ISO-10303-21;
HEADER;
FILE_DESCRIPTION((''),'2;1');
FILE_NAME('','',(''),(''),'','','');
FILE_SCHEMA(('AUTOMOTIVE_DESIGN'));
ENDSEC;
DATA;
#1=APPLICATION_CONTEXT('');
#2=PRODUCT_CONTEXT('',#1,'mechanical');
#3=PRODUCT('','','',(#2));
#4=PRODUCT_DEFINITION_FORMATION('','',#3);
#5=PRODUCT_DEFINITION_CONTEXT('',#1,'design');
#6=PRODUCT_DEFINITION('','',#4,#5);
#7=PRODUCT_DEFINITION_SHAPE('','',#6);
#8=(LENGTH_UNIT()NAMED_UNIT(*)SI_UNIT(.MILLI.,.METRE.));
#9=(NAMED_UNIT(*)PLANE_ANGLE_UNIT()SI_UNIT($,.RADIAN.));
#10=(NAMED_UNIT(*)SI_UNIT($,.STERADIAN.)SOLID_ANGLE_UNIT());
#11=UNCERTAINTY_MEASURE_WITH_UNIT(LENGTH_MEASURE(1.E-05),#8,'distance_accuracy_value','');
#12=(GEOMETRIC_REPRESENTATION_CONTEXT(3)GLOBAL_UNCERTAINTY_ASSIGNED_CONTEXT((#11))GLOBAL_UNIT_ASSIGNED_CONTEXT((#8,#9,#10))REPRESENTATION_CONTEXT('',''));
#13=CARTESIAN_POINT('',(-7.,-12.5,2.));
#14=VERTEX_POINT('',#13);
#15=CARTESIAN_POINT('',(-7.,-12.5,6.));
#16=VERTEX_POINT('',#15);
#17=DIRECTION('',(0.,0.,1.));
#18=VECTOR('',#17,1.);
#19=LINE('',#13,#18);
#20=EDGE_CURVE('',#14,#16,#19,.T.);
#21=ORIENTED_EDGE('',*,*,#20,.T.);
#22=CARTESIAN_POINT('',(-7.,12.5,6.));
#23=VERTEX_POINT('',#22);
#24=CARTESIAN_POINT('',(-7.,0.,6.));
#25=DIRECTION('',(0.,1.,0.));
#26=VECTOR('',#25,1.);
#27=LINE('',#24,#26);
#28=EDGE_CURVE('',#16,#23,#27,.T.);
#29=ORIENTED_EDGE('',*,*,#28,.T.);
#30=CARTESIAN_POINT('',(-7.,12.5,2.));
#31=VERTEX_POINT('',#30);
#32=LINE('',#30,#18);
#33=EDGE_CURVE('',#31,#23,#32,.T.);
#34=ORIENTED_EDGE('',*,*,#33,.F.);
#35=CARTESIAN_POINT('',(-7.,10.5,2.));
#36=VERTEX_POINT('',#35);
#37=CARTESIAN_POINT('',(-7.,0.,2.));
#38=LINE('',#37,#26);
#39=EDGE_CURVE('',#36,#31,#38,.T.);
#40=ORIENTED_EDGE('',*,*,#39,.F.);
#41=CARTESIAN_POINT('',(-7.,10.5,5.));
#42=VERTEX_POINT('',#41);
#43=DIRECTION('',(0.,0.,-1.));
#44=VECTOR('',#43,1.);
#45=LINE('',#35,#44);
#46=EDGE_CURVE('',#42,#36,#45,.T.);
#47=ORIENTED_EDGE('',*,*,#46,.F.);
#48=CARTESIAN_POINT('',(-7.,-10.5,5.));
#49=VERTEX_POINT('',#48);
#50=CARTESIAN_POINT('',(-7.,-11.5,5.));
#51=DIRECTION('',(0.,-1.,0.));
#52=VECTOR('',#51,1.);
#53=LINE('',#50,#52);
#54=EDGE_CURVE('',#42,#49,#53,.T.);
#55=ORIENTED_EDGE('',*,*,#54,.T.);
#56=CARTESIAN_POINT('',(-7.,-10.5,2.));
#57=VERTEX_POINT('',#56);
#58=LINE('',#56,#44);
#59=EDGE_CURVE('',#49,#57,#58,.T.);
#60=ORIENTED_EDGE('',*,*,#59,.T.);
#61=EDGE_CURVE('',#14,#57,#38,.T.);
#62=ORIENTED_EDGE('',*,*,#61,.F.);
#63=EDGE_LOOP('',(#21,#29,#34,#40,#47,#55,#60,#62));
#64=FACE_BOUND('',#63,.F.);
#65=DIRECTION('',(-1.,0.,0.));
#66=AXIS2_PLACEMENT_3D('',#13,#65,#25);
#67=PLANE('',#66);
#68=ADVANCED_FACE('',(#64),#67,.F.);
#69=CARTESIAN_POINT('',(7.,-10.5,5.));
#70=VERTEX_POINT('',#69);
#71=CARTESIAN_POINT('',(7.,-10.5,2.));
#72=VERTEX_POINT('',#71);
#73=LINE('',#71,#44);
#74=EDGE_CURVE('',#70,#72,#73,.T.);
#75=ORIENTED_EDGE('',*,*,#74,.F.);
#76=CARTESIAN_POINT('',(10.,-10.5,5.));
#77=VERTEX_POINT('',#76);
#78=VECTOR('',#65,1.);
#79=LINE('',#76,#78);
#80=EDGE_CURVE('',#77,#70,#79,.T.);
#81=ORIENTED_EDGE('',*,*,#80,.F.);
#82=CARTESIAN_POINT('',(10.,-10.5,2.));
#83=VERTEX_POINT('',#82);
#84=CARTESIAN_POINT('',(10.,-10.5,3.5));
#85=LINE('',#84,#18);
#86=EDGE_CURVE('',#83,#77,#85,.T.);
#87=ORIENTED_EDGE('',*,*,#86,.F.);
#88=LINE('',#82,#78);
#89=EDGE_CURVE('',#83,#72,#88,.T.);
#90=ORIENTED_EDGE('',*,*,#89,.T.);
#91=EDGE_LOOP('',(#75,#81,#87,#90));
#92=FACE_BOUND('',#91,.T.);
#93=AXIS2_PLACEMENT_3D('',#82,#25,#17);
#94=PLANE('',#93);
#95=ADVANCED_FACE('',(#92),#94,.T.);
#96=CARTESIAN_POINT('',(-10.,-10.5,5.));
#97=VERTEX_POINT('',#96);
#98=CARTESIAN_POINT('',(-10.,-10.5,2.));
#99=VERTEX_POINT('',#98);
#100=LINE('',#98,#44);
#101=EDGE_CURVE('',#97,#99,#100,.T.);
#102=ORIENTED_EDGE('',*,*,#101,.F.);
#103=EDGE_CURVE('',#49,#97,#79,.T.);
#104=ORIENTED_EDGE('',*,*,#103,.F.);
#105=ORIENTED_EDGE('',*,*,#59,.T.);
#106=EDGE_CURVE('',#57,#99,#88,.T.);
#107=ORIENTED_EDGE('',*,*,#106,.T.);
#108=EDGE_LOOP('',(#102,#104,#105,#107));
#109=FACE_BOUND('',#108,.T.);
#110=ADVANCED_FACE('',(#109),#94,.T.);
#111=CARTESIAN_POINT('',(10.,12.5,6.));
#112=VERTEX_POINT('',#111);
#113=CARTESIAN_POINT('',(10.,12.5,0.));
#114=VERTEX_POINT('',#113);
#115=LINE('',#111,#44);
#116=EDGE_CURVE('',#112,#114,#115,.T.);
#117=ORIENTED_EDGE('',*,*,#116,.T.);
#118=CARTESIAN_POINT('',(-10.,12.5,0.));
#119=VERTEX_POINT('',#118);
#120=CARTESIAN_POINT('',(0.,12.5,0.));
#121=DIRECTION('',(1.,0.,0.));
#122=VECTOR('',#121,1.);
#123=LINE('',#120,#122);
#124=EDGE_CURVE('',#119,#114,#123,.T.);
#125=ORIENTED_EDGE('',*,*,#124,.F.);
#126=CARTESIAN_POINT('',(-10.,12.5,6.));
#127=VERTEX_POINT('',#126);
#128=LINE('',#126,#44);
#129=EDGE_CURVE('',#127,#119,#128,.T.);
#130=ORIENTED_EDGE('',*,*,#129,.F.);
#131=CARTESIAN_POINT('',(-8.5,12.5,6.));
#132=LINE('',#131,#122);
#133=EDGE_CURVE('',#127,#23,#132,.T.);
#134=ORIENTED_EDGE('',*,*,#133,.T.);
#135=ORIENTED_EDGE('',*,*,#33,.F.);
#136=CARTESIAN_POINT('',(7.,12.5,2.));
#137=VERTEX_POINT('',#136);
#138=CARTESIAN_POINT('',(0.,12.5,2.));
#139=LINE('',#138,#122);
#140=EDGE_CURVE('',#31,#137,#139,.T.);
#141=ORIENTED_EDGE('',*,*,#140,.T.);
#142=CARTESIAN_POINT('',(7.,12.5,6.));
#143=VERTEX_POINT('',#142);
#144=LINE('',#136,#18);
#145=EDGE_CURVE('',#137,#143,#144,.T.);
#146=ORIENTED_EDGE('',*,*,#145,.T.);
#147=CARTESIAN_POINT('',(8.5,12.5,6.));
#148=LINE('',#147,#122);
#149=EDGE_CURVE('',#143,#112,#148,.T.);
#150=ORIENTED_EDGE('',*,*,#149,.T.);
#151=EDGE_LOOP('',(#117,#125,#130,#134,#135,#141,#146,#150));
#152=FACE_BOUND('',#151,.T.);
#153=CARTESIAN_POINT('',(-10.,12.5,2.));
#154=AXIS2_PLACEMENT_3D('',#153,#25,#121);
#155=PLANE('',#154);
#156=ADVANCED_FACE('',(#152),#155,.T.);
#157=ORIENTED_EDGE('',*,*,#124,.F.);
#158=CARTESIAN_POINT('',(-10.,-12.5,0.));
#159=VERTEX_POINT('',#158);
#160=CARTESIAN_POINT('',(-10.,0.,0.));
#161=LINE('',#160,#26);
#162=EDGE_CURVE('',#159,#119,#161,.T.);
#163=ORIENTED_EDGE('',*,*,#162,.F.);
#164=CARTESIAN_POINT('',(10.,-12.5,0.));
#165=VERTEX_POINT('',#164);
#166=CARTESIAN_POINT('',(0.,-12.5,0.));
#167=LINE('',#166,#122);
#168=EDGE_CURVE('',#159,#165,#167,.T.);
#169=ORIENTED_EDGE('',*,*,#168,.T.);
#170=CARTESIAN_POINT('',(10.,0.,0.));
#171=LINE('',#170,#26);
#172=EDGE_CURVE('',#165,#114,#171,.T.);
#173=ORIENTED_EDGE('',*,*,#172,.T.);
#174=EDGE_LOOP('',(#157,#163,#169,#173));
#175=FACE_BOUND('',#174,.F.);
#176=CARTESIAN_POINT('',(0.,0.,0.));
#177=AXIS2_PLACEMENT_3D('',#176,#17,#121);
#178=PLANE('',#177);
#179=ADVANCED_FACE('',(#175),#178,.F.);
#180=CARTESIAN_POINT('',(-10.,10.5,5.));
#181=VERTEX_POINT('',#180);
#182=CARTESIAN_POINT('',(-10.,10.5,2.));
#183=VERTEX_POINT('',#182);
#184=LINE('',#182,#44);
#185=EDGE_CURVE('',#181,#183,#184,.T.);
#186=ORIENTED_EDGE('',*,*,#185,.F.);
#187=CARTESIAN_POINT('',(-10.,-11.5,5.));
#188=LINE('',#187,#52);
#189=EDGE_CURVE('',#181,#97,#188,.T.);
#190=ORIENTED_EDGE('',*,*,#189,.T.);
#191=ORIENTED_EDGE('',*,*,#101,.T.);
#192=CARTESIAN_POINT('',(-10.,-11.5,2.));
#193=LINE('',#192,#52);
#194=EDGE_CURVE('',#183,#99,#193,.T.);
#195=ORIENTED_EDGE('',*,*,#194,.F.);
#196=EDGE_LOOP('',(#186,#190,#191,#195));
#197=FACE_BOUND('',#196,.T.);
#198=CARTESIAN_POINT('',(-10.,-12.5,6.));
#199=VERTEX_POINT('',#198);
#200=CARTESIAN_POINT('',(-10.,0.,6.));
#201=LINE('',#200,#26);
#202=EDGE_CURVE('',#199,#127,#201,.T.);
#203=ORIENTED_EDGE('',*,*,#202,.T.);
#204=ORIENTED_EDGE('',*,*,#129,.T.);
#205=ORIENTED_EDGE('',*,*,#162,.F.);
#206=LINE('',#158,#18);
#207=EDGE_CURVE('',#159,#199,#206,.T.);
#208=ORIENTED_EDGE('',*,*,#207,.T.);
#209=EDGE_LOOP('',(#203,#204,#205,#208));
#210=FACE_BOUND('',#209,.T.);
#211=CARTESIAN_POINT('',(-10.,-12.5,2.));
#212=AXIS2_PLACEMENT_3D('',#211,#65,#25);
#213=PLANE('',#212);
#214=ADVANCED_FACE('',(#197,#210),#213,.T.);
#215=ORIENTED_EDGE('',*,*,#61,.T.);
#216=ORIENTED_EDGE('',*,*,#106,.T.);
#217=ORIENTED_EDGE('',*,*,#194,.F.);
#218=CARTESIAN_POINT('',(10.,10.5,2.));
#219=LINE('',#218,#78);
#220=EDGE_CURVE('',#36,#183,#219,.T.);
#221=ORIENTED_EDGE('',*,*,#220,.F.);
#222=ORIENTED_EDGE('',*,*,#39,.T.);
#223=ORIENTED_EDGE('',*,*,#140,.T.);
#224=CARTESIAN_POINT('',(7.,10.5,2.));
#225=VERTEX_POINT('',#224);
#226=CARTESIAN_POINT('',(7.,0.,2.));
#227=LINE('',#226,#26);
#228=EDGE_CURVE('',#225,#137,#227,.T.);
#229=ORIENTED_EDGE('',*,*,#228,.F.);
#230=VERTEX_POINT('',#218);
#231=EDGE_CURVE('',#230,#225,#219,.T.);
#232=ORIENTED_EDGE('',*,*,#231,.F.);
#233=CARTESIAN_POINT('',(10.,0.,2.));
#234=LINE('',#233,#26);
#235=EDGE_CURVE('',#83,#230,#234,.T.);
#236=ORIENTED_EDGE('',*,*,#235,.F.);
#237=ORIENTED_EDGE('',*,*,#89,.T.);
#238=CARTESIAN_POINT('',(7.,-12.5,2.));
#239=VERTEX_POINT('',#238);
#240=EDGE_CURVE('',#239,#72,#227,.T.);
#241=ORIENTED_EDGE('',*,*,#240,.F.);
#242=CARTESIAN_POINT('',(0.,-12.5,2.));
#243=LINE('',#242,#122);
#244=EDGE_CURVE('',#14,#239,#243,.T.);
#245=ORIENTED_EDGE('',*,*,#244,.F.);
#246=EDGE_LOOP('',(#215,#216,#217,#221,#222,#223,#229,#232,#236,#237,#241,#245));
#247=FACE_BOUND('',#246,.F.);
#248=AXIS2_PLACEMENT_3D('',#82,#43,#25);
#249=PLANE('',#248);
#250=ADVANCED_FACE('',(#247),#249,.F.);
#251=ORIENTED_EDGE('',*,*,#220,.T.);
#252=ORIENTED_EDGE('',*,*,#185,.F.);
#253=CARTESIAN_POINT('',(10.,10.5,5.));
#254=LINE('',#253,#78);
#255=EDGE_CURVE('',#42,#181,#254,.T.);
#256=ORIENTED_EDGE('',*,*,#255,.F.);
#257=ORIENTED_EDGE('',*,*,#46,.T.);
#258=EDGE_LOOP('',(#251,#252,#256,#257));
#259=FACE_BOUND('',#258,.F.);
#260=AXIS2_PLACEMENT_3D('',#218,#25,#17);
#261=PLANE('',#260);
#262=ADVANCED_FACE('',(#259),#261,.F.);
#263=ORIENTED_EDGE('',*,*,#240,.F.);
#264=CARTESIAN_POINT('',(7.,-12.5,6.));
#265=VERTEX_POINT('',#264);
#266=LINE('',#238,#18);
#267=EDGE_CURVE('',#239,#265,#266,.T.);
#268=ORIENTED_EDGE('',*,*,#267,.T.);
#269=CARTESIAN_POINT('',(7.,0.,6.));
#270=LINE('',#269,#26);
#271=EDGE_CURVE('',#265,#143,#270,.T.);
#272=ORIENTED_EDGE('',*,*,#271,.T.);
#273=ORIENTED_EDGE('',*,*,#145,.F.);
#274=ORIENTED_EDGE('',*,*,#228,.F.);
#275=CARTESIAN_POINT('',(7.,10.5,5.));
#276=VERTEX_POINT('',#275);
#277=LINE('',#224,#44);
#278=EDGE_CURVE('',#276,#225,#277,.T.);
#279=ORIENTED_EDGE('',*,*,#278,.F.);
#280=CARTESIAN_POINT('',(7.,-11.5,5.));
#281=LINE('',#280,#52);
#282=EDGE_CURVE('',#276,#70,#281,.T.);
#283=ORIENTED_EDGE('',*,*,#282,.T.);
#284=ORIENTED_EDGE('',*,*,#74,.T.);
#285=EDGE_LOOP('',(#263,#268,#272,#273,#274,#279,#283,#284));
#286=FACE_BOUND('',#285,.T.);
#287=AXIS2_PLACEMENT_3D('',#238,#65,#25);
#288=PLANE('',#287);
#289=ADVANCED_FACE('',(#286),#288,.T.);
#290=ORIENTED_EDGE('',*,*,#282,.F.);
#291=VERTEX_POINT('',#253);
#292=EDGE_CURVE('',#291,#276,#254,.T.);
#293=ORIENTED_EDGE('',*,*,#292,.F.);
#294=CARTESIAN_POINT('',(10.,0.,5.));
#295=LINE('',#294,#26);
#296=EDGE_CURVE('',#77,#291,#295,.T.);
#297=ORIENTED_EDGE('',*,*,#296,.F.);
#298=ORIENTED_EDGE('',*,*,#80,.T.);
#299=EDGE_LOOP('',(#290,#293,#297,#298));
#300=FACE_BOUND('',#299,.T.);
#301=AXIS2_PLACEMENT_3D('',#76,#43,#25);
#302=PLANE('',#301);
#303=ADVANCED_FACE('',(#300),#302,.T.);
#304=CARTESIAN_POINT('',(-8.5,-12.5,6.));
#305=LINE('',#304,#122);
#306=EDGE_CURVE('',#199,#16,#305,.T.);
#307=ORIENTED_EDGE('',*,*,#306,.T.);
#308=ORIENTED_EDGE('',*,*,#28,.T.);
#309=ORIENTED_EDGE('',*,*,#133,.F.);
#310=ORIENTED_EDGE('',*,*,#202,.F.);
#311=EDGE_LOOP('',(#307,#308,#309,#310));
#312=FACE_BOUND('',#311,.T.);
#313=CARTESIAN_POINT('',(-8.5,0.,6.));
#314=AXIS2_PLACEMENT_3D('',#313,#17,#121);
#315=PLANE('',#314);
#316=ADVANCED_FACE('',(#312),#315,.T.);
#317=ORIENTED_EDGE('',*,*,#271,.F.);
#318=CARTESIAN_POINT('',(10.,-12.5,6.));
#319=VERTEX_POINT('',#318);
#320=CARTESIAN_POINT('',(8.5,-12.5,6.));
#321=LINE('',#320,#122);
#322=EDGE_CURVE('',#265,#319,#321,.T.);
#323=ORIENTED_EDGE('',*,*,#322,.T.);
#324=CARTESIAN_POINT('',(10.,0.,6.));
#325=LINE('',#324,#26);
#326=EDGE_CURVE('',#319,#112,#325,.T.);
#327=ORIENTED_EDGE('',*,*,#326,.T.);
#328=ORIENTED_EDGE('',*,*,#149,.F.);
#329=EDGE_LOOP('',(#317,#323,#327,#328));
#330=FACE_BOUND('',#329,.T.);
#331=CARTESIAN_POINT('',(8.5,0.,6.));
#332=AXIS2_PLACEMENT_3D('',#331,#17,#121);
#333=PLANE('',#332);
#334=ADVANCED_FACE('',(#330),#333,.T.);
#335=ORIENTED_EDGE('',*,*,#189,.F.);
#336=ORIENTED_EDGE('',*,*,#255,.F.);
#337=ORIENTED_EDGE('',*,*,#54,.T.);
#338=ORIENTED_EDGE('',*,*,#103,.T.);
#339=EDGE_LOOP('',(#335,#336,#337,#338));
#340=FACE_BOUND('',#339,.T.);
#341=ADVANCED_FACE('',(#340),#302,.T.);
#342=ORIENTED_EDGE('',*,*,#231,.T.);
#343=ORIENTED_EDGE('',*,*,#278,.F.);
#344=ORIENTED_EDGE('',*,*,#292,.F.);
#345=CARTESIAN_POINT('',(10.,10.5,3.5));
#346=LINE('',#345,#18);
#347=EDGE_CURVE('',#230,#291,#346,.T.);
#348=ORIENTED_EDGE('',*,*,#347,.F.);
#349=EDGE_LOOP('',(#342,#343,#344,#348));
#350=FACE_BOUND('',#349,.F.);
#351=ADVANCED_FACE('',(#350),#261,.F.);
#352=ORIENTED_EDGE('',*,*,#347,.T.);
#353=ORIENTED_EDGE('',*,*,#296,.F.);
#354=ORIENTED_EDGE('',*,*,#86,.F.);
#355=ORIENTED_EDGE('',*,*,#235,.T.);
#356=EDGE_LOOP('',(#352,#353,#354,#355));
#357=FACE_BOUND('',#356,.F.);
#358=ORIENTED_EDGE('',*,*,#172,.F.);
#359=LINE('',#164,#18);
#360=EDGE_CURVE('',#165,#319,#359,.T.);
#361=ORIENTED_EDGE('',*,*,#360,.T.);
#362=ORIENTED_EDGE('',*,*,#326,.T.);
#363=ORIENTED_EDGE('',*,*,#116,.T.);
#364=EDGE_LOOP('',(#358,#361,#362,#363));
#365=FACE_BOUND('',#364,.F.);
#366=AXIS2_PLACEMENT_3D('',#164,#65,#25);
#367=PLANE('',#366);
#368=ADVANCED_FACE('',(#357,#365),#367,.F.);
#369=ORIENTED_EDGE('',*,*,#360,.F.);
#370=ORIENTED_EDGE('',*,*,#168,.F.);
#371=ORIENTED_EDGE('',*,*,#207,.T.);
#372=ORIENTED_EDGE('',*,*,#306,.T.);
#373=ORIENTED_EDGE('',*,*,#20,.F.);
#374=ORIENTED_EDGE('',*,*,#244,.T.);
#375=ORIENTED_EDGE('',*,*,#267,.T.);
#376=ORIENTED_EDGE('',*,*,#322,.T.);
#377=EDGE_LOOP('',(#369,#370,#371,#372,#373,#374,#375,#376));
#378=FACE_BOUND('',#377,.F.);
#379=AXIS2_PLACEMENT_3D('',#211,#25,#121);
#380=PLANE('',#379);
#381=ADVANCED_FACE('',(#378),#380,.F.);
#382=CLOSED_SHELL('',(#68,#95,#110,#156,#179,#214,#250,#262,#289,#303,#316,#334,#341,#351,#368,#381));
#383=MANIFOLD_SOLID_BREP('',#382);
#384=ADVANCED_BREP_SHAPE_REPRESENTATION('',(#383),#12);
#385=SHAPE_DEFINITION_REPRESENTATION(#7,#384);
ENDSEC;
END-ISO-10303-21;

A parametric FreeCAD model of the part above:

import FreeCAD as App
import Part
import Sketcher


def add_polygon(sketch, points):
    """Adds a closed chain of lines whose ends are joined by coincident constraints."""
    first, n = sketch.GeometryCount, len(points)
    for a, b in zip(points, points[1:] + points[:1]):
        sketch.addGeometry(Part.LineSegment(App.Vector(*a, 0), App.Vector(*b, 0)), False)
    for i in range(n):
        sketch.addConstraint(Sketcher.Constraint("Coincident", first + i, 2, first + (i + 1) % n, 1))

doc = App.newDocument("Part")
body = doc.addObject("PartDesign::Body", "Body")

# Sketch on XY plane
sketch1 = body.newObject("Sketcher::SketchObject", "Sketch")
sketch1.AttachmentSupport = (doc.getObject("XY_Plane"), [""])
sketch1.MapMode = "FlatFace"
add_polygon(sketch1, [(-10, 12.5), (-10, -12.5), (10, -12.5), (10, 12.5)])  # lines 0-3
sketch1.addConstraint([
    Sketcher.Constraint("Vertical", 0),
    Sketcher.Constraint("Horizontal", 1),
    Sketcher.Constraint("Vertical", 2),
    Sketcher.Constraint("Horizontal", 3),
    Sketcher.Constraint("Symmetric", 0, 2, 2, 2, -1, 1),
    Sketcher.Constraint("DistanceX", 1, 1, 1, 2, 20.0),
    Sketcher.Constraint("DistanceY", 0, 2, 0, 1, 25.0),
])
pad1 = body.newObject("PartDesign::Pad", "Pad")
pad1.Profile = sketch1
pad1.Length = 2

# Sketch on XY plane
sketch2 = body.newObject("Sketcher::SketchObject", "Sketch001")
sketch2.AttachmentSupport = (doc.getObject("XY_Plane"), [""])
sketch2.MapMode = "FlatFace"
sketch2.AttachmentOffset = App.Placement(App.Vector(0, 0, 2), App.Rotation())
add_polygon(sketch2, [(-10, 12.5), (-10, -12.5), (-7, -12.5), (-7, 12.5)])  # lines 0-3
add_polygon(sketch2, [(7, 12.5), (7, -12.5), (10, -12.5), (10, 12.5)])  # lines 4-7
sketch2.addConstraint([
    Sketcher.Constraint("Vertical", 0),
    Sketcher.Constraint("Horizontal", 1),
    Sketcher.Constraint("Vertical", 2),
    Sketcher.Constraint("Horizontal", 3),
    Sketcher.Constraint("Vertical", 4),
    Sketcher.Constraint("Horizontal", 5),
    Sketcher.Constraint("Vertical", 6),
    Sketcher.Constraint("Horizontal", 7),
    Sketcher.Constraint("Symmetric", 2, 2, 4, 2, -1, 1),
    Sketcher.Constraint("Symmetric", 0, 2, 6, 2, -1, 1),
    Sketcher.Constraint("Horizontal", 1, 2, 4, 2),
    Sketcher.Constraint("DistanceX", 1, 1, 1, 2, 3.0),
    Sketcher.Constraint("DistanceY", 0, 2, 0, 1, 25.0),
    Sketcher.Constraint("DistanceX", 0, 2, -1, 1, 10.0),
])
pad2 = body.newObject("PartDesign::Pad", "Pad001")
pad2.Profile = sketch2
pad2.Length = 4

# Sketch on YZ plane
sketch3 = body.newObject("Sketcher::SketchObject", "Sketch002")
sketch3.AttachmentSupport = (doc.getObject("YZ_Plane"), [""])
sketch3.MapMode = "FlatFace"
sketch3.AttachmentOffset = App.Placement(App.Vector(0, 0, 10), App.Rotation())
add_polygon(sketch3, [(-10.5, 5), (-10.5, 2), (10.5, 2), (10.5, 5)])  # lines 0-3
sketch3.addConstraint([
    Sketcher.Constraint("Vertical", 0),
    Sketcher.Constraint("Horizontal", 1),
    Sketcher.Constraint("Vertical", 2),
    Sketcher.Constraint("Horizontal", 3),
    Sketcher.Constraint("DistanceX", 1, 1, 1, 2, 21.0),
    Sketcher.Constraint("DistanceY", 0, 2, 0, 1, 3.0),
    Sketcher.Constraint("DistanceY", -1, 1, 0, 2, 2.0),
    Sketcher.Constraint("DistanceX", 0, 2, -1, 1, 10.5),
])
pocket1 = body.newObject("PartDesign::Pocket", "Pocket")
pocket1.Profile = sketch3
pocket1.Length = 25

doc.recompute()
